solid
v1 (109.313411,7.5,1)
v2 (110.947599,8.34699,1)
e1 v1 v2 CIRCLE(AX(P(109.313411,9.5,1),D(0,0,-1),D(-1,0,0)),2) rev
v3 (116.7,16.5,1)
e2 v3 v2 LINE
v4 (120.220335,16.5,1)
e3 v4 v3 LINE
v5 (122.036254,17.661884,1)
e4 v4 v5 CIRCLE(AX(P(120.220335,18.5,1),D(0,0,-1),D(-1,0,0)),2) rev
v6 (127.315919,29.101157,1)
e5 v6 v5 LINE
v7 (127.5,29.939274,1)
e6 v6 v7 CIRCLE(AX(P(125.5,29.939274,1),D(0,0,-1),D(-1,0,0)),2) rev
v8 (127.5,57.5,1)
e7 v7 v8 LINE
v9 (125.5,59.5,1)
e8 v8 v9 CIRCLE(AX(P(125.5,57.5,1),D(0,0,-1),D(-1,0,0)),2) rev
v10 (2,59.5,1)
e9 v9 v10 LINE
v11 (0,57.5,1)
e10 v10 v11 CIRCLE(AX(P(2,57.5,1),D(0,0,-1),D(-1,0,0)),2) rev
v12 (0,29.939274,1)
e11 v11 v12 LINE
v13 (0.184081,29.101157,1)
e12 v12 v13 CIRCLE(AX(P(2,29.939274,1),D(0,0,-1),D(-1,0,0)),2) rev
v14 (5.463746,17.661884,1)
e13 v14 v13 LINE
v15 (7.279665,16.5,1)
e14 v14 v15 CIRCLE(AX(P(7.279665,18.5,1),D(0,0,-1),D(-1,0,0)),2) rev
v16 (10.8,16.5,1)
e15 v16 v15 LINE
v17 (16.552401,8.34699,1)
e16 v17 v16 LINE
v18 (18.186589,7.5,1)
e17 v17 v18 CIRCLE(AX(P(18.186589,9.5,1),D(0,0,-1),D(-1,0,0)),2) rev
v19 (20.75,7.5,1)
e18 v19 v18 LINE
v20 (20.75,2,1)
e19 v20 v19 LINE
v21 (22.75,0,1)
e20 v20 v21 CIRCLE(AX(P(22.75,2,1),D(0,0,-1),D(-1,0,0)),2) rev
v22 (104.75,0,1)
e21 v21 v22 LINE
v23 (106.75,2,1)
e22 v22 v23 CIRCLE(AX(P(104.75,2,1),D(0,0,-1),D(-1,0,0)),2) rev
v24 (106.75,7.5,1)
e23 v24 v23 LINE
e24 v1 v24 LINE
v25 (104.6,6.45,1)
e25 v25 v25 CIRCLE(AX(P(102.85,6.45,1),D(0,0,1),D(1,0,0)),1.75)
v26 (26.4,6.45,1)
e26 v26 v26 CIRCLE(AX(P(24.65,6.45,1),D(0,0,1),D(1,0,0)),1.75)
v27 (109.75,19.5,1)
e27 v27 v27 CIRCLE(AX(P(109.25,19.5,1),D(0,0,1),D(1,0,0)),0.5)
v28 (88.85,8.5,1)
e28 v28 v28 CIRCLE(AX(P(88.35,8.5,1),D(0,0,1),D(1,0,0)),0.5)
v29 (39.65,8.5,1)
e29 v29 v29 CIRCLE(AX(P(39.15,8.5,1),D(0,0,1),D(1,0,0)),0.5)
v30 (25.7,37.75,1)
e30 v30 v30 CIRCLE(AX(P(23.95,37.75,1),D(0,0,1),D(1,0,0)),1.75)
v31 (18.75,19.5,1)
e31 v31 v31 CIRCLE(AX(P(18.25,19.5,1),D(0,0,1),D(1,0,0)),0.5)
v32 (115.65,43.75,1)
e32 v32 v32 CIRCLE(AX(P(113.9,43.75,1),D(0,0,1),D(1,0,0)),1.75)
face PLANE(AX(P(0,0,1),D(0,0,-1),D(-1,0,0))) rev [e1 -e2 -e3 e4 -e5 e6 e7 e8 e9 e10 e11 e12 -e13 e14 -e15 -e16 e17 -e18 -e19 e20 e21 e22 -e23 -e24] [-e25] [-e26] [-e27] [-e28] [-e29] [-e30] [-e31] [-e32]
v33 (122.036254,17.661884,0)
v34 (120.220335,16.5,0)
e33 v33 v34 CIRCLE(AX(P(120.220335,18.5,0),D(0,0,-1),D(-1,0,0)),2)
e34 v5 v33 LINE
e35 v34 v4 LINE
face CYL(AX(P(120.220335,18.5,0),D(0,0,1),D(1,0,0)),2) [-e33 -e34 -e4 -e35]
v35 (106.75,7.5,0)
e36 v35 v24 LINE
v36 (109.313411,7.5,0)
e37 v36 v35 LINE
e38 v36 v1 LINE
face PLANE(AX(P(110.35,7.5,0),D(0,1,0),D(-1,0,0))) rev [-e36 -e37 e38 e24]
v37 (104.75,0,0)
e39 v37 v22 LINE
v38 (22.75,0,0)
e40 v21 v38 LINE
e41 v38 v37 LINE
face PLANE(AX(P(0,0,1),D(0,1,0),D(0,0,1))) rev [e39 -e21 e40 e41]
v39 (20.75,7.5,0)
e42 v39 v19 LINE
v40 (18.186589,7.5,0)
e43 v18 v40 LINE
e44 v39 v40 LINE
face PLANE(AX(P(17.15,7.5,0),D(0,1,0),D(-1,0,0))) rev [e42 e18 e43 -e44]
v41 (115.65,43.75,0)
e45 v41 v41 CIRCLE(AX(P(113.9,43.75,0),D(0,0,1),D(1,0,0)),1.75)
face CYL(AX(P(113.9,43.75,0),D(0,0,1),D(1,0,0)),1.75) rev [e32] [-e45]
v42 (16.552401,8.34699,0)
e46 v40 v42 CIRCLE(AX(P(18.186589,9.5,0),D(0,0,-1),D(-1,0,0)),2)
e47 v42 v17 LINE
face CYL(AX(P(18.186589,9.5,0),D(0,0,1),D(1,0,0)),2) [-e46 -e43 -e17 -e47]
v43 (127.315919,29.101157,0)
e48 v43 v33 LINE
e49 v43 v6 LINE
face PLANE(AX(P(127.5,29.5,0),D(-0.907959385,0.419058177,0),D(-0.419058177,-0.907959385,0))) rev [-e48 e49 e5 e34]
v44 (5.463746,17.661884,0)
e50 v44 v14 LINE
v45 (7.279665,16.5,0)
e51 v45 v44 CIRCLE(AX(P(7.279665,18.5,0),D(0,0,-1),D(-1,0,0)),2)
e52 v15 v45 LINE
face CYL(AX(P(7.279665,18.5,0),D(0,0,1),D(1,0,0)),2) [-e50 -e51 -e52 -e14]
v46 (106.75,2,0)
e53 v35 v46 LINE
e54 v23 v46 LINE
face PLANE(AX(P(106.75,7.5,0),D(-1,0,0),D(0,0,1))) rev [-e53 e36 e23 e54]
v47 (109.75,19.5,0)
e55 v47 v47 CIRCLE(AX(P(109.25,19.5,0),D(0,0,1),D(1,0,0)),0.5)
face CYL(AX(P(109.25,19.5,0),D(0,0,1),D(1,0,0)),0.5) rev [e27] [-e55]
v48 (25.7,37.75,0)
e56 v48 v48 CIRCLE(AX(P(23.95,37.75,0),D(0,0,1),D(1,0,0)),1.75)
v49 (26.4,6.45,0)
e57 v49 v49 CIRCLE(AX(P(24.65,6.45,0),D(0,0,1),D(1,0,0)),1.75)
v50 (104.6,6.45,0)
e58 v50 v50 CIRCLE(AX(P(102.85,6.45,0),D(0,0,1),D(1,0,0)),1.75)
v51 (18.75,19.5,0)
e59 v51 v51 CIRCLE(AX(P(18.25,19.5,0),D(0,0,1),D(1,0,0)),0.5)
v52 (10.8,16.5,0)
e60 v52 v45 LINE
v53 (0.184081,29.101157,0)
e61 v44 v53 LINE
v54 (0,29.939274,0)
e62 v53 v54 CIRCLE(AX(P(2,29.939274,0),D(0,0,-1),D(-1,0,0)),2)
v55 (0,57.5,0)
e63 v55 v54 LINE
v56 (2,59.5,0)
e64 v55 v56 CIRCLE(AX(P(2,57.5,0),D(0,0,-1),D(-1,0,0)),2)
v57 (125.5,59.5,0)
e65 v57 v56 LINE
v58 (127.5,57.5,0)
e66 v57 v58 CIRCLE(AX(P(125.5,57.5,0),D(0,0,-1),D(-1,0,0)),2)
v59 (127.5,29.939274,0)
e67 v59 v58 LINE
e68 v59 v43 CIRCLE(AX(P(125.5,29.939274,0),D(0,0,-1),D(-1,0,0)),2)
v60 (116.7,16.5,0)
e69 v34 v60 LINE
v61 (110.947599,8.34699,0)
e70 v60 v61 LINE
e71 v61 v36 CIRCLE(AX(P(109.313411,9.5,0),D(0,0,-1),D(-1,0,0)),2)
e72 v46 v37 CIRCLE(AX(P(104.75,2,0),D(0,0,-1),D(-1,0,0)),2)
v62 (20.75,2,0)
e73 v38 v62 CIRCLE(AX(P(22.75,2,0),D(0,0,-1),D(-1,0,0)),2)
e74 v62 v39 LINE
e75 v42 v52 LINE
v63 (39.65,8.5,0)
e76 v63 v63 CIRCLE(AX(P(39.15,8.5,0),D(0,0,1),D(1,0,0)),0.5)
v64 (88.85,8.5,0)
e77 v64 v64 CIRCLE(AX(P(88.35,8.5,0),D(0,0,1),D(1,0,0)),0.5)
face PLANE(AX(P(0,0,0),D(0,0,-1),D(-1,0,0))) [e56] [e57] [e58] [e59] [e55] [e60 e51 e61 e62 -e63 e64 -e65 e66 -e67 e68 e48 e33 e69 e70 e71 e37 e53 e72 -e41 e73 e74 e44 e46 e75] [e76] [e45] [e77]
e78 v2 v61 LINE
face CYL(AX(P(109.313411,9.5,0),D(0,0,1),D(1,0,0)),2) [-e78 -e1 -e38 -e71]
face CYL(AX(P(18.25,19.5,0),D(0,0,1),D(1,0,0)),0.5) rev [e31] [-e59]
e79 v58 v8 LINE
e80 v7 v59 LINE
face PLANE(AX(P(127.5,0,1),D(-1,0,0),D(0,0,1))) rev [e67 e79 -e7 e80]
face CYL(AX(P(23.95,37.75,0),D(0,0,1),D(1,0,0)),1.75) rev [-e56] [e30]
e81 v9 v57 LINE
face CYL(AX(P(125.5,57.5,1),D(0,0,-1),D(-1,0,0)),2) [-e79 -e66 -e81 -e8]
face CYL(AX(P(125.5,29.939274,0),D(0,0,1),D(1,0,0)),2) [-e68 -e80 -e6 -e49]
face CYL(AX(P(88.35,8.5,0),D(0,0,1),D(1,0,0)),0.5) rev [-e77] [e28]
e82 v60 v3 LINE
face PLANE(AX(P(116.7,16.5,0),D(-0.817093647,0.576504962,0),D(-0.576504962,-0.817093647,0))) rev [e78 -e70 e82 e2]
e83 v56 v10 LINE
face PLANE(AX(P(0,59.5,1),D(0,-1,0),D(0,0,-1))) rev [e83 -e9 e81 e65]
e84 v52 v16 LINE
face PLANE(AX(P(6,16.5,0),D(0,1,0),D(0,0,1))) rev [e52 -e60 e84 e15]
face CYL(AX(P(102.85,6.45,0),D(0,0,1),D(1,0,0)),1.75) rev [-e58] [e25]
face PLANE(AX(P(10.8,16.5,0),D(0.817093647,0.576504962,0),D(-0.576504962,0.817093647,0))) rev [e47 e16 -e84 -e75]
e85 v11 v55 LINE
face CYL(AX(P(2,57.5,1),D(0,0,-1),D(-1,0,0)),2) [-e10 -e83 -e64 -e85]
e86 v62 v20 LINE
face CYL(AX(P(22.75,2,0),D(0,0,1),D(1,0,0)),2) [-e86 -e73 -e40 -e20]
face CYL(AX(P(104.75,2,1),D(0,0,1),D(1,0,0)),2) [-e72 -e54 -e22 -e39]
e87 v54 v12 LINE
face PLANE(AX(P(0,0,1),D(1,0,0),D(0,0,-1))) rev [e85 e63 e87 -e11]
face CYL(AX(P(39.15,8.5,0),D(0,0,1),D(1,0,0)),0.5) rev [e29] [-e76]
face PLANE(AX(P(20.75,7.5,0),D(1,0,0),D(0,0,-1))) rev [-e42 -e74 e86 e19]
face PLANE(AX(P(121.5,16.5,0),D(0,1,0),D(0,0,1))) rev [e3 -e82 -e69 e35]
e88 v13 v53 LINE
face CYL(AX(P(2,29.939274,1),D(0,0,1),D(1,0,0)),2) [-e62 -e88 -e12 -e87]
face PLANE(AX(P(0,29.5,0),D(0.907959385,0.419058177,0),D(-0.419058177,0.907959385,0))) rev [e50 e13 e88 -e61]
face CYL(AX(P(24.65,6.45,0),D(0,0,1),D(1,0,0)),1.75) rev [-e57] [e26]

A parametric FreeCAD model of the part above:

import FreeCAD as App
import Part
import Sketcher
from FreeCAD import Vector


def edges_at(feature, points):
    """Names of the edges that pass closest to the given points."""
    edges = feature.Shape.Edges
    near = lambda p: min(range(len(edges)), key=lambda i: edges[i].distToShape(Part.Vertex(*p))[0])
    return sorted({f"Edge{near(p) + 1}" for p in points})


def add_polygon(sketch, points):
    """Adds a closed chain of lines whose ends are joined by coincident constraints."""
    first, n = sketch.GeometryCount, len(points)
    for a, b in zip(points, points[1:] + points[:1]):
        sketch.addGeometry(Part.LineSegment(App.Vector(*a, 0), App.Vector(*b, 0)), False)
    for i in range(n):
        sketch.addConstraint(Sketcher.Constraint("Coincident", first + i, 2, first + (i + 1) % n, 1))

doc = App.newDocument("Part")
body = doc.addObject("PartDesign::Body", "Body")

# Sketch on XY plane
sketch1 = body.newObject("Sketcher::SketchObject", "Sketch")
sketch1.AttachmentSupport = (doc.getObject("XY_Plane"), [""])
sketch1.MapMode = "FlatFace"
add_polygon(sketch1, [(0, 60), (0, 0), (128, 0), (128, 60)])  # lines 0-3
sketch1.addConstraint([
    Sketcher.Constraint("Vertical", 0),
    Sketcher.Constraint("Horizontal", 1),
    Sketcher.Constraint("Vertical", 2),
    Sketcher.Constraint("Horizontal", 3),
    Sketcher.Constraint("Coincident", 0, 2, -1, 1),
    Sketcher.Constraint("DistanceX", 1, 1, 1, 2, 127.5),
    Sketcher.Constraint("DistanceY", 0, 2, 0, 1, 59.5),
])
pad1 = body.newObject("PartDesign::Pad", "Pad")
pad1.Profile = sketch1
pad1.Length = 1

# Sketch on XY plane
sketch2 = body.newObject("Sketcher::SketchObject", "Sketch001")
sketch2.AttachmentSupport = (doc.getObject("XY_Plane"), [""])
sketch2.MapMode = "FlatFace"
sketch2.AttachmentOffset = App.Placement(Vector(0, 0, 1), App.Rotation())
sketch2.addGeometry(Part.Circle(Vector(102.8, 6.5, 0), Vector(0, 0, 1), 1.8), False)  # 0
sketch2.addGeometry(Part.Circle(Vector(113.9, 43.8, 0), Vector(0, 0, 1), 1.8), False)  # 1
sketch2.addGeometry(Part.Circle(Vector(23.9, 37.8, 0), Vector(0, 0, 1), 1.8), False)  # 2
sketch2.addGeometry(Part.Circle(Vector(24.6, 6.5, 0), Vector(0, 0, 1), 1.8), False)  # 3
add_polygon(sketch2, [(127.5, 29.5), (121.5, 16.5), (116.7, 16.5), (110.3, 7.5), (106.8, 7.5), (106.8, 0), (127.5, 0)])  # lines 4-10
add_polygon(sketch2, [(0, 0), (20.8, 0), (20.8, 7.5), (17.1, 7.5), (10.8, 16.5), (6, 16.5), (0, 29.5)])  # lines 11-17
sketch2.addConstraint([
    Sketcher.Constraint("Horizontal", 5),
    Sketcher.Constraint("Horizontal", 7),
    Sketcher.Constraint("Vertical", 8),
    Sketcher.Constraint("Horizontal", 9),
    Sketcher.Constraint("Vertical", 10),
    Sketcher.Constraint("Horizontal", 11),
    Sketcher.Constraint("Vertical", 12),
    Sketcher.Constraint("Horizontal", 13),
    Sketcher.Constraint("Horizontal", 15),
    Sketcher.Constraint("Vertical", 17),
    Sketcher.Constraint("Coincident", 17, 2, -1, 1),
    Sketcher.Constraint("Equal", 0, 1),
    Sketcher.Constraint("Equal", 1, 2),
    Sketcher.Constraint("Equal", 2, 3),
    Sketcher.Constraint("PointOnObject", 8, 2, -1),
    Sketcher.Constraint("Horizontal", 0, 3, 3, 3),
    Sketcher.Constraint("Horizontal", 7, 2, 12, 2),
    Sketcher.Constraint("Horizontal", 5, 2, 14, 2),
    Sketcher.Constraint("Horizontal", 10, 2, 16, 2),
    Sketcher.Constraint("Equal", 9, 11),
    Sketcher.Constraint("Equal", 7, 13),
    Sketcher.Constraint("Equal", 5, 15),
    Sketcher.Constraint("Equal", 6, 14),
    Sketcher.Constraint("Diameter", 0, 3.5),
    Sketcher.Constraint("DistanceX", 5, 2, 5, 1, 4.8),
    Sketcher.Constraint("DistanceX", 7, 2, 7, 1, 3.6),
    Sketcher.Constraint("DistanceY", 8, 2, 8, 1, 7.5),
    Sketcher.Constraint("DistanceY", 10, 1, 10, 2, 29.5),
    Sketcher.Constraint("DistanceX", -1, 1, 15, 2, 6.0),
    Sketcher.Constraint("DistanceY", 2, 3, 1, 3, 6.0),
    Sketcher.Constraint("DistanceY", 6, 2, 5, 2, 9.0),
    Sketcher.Constraint("DistanceX", 11, 2, 8, 2, 86.0),
    Sketcher.Constraint("DistanceX", 9, 1, 9, 2, 20.75),
    Sketcher.Constraint("DistanceX", -1, 1, 1, 3, 113.9),
    Sketcher.Constraint("DistanceY", 0, 3, 1, 3, 37.3),
    Sketcher.Constraint("DistanceX", 2, 3, 0, 3, 78.9),
    Sketcher.Constraint("DistanceX", 2, 3, 3, 3, 0.7),
    Sketcher.Constraint("DistanceX", 0, 3, 6, 2, 7.5),
    Sketcher.Constraint("DistanceY", -1, 1, 0, 3, 6.45),
])
pocket1 = body.newObject("PartDesign::Pocket", "Pocket")
pocket1.Profile = sketch2
pocket1.Type = "ThroughAll"

# Sketch on XY plane
sketch3 = body.newObject("Sketcher::SketchObject", "Sketch002")
sketch3.AttachmentSupport = (doc.getObject("XY_Plane"), [""])
sketch3.MapMode = "FlatFace"
sketch3.AttachmentOffset = App.Placement(Vector(0, 0, 1), App.Rotation())
sketch3.addGeometry([
    Part.Circle(Vector(39.1, 8.5, 0), Vector(0, 0, 1), 0.5),
    Part.Circle(Vector(88.3, 8.5, 0), Vector(0, 0, 1), 0.5),
    Part.Circle(Vector(109.2, 19.5, 0), Vector(0, 0, 1), 0.5),
    Part.Circle(Vector(18.2, 19.5, 0), Vector(0, 0, 1), 0.5),
], False)
sketch3.addConstraint([
    Sketcher.Constraint("Equal", 0, 1),
    Sketcher.Constraint("Equal", 1, 2),
    Sketcher.Constraint("Equal", 2, 3),
    Sketcher.Constraint("Horizontal", 0, 3, 1, 3),
    Sketcher.Constraint("Horizontal", 2, 3, 3, 3),
    Sketcher.Constraint("Diameter", 0, 1.0),
    Sketcher.Constraint("DistanceY", 1, 3, 2, 3, 11.0),
    Sketcher.Constraint("DistanceX", 3, 3, 2, 3, 91.0),
    Sketcher.Constraint("DistanceY", -1, 1, 0, 3, 8.5),
    Sketcher.Constraint("DistanceX", 0, 3, 1, 3, 49.2),
    Sketcher.Constraint("DistanceX", 1, 3, 2, 3, 20.9),
    Sketcher.Constraint("DistanceX", -1, 1, 0, 3, 39.15),
])
pocket2 = body.newObject("PartDesign::Pocket", "Pocket001")
pocket2.Profile = sketch3
pocket2.Type = "ThroughAll"
doc.recompute()

fillet = body.newObject("PartDesign::Fillet", "Fillet")
fillet.Base = (pocket2, edges_at(pocket2, [
    (127.5, 29.5, 0.5),
    (106.75, 0, 0.5),
    (110.35, 7.5, 0.5),
    (121.5, 16.5, 0.5),
    (0, 29.5, 0.5),
    (6, 16.5, 0.5),
    (17.15, 7.5, 0.5),
    (20.75, 0, 0.5),
    (0, 59.5, 0.5),
    (127.5, 59.5, 0.5),
]))
fillet.Radius = 2

doc.recompute()
